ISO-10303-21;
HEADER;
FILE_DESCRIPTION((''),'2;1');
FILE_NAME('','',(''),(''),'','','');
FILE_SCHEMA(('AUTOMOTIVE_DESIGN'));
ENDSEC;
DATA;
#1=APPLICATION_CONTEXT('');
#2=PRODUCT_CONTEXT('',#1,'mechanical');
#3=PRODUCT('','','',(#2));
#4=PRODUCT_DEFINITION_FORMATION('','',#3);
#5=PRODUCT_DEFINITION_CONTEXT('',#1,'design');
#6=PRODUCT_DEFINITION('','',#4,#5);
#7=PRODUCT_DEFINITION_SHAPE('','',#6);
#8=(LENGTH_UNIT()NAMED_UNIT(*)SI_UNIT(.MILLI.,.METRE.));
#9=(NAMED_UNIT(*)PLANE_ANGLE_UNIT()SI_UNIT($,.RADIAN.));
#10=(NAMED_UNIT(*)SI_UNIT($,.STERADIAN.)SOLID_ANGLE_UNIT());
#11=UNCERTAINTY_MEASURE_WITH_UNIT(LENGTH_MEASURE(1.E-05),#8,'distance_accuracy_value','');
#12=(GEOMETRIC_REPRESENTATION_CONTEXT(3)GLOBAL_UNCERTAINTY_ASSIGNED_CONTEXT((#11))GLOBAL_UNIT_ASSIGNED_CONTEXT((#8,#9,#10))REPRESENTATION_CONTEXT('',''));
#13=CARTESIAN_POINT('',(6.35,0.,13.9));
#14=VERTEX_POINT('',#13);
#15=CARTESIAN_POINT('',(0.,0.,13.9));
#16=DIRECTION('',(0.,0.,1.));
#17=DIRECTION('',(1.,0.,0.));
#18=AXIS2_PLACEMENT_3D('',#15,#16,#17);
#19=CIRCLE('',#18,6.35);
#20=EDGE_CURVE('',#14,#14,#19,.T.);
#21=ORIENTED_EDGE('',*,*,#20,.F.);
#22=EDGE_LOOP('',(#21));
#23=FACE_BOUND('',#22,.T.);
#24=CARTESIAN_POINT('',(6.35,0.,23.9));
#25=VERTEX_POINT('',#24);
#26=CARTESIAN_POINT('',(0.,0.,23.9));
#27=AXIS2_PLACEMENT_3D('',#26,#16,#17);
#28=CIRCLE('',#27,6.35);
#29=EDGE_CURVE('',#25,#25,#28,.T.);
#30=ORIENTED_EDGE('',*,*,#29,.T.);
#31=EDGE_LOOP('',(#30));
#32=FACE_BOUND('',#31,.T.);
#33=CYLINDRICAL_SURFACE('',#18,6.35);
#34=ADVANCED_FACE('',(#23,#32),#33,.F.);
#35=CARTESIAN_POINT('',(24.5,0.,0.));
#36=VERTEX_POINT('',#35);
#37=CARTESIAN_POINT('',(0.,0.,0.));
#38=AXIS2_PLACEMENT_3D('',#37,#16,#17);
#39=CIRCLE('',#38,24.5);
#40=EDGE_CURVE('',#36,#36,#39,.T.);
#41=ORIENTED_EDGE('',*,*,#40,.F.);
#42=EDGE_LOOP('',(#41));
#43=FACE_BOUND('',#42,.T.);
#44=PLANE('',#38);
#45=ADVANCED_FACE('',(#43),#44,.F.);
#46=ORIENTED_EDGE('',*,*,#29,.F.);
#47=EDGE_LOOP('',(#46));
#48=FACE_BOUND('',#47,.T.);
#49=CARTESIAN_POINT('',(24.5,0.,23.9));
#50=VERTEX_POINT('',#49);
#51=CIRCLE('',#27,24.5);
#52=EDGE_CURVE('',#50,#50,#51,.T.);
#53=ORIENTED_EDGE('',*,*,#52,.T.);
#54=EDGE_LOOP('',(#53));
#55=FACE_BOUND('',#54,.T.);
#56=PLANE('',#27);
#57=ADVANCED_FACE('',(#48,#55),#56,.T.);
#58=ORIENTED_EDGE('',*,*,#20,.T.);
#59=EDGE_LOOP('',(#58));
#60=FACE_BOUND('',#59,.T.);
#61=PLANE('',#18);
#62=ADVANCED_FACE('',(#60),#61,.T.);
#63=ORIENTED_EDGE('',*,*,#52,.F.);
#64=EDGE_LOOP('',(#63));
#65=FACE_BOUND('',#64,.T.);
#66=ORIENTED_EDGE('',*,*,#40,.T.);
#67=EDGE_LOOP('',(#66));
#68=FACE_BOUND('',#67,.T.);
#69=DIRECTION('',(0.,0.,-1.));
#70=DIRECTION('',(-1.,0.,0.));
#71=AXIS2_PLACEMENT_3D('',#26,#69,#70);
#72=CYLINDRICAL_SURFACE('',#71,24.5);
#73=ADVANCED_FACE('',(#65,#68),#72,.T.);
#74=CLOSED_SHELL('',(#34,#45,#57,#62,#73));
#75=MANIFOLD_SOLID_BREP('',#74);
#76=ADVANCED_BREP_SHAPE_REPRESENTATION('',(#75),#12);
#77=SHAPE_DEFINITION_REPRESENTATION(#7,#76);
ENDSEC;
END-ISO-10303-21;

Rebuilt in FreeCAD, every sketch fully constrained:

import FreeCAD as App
import Part
import Sketcher

V = App.Vector
Q = App.Units.Quantity

doc = App.newDocument("Part")
params = doc.addObject("Spreadsheet::Sheet", "Params")
for row, (alias, value) in enumerate([
    ("sketch1_diameter", "49 mm"),
    ("pad1_length", "23.9 mm"),
    ("sketch2_diameter", "12.7 mm"),
    ("pocket1_length", "10 mm"),
], start=1):
    params.set(f"A{row}", alias)
    params.set(f"B{row}", "=" + value)
    params.setAlias(f"B{row}", alias)

body = doc.addObject("PartDesign::Body", "Body")

# Sketch on XY plane
sketch1 = body.newObject("Sketcher::SketchObject", "Sketch")
sketch1.AttachmentSupport = (doc.getObject("XY_Plane"), [""])
sketch1.MapMode = "FlatFace"
sketch1.addGeometry(Part.Circle(V(0, 0, 0), V(0, 0, 1), 24), False)
sketch1.addConstraint([
    Sketcher.Constraint("Coincident", 0, 3, -1, 1),
    Sketcher.Constraint("Diameter", 0, Q("49 mm")),
])
sketch1.setExpression("Constraints[1]", "Params.sketch1_diameter")
pad1 = body.newObject("PartDesign::Pad", "Pad")
pad1.Profile = sketch1
pad1.setExpression("Length", "Params.pad1_length")

# Sketch on XY plane
sketch2 = body.newObject("Sketcher::SketchObject", "Sketch001")
sketch2.AttachmentSupport = (doc.getObject("XY_Plane"), [""])
sketch2.MapMode = "FlatFace"
sketch2.AttachmentOffset = App.Placement(V(0, 0, 23.9), App.Rotation())
sketch2.addGeometry(Part.Circle(V(0, 0, 0), V(0, 0, 1), 6), False)
sketch2.addConstraint([
    Sketcher.Constraint("Coincident", 0, 3, -1, 1),
    Sketcher.Constraint("Diameter", 0, Q("12.7 mm")),
])
sketch2.setExpression("Constraints[1]", "Params.sketch2_diameter")
pocket1 = body.newObject("PartDesign::Pocket", "Pocket")
pocket1.Profile = sketch2
pocket1.setExpression("Length", "Params.pocket1_length")

doc.recompute()
